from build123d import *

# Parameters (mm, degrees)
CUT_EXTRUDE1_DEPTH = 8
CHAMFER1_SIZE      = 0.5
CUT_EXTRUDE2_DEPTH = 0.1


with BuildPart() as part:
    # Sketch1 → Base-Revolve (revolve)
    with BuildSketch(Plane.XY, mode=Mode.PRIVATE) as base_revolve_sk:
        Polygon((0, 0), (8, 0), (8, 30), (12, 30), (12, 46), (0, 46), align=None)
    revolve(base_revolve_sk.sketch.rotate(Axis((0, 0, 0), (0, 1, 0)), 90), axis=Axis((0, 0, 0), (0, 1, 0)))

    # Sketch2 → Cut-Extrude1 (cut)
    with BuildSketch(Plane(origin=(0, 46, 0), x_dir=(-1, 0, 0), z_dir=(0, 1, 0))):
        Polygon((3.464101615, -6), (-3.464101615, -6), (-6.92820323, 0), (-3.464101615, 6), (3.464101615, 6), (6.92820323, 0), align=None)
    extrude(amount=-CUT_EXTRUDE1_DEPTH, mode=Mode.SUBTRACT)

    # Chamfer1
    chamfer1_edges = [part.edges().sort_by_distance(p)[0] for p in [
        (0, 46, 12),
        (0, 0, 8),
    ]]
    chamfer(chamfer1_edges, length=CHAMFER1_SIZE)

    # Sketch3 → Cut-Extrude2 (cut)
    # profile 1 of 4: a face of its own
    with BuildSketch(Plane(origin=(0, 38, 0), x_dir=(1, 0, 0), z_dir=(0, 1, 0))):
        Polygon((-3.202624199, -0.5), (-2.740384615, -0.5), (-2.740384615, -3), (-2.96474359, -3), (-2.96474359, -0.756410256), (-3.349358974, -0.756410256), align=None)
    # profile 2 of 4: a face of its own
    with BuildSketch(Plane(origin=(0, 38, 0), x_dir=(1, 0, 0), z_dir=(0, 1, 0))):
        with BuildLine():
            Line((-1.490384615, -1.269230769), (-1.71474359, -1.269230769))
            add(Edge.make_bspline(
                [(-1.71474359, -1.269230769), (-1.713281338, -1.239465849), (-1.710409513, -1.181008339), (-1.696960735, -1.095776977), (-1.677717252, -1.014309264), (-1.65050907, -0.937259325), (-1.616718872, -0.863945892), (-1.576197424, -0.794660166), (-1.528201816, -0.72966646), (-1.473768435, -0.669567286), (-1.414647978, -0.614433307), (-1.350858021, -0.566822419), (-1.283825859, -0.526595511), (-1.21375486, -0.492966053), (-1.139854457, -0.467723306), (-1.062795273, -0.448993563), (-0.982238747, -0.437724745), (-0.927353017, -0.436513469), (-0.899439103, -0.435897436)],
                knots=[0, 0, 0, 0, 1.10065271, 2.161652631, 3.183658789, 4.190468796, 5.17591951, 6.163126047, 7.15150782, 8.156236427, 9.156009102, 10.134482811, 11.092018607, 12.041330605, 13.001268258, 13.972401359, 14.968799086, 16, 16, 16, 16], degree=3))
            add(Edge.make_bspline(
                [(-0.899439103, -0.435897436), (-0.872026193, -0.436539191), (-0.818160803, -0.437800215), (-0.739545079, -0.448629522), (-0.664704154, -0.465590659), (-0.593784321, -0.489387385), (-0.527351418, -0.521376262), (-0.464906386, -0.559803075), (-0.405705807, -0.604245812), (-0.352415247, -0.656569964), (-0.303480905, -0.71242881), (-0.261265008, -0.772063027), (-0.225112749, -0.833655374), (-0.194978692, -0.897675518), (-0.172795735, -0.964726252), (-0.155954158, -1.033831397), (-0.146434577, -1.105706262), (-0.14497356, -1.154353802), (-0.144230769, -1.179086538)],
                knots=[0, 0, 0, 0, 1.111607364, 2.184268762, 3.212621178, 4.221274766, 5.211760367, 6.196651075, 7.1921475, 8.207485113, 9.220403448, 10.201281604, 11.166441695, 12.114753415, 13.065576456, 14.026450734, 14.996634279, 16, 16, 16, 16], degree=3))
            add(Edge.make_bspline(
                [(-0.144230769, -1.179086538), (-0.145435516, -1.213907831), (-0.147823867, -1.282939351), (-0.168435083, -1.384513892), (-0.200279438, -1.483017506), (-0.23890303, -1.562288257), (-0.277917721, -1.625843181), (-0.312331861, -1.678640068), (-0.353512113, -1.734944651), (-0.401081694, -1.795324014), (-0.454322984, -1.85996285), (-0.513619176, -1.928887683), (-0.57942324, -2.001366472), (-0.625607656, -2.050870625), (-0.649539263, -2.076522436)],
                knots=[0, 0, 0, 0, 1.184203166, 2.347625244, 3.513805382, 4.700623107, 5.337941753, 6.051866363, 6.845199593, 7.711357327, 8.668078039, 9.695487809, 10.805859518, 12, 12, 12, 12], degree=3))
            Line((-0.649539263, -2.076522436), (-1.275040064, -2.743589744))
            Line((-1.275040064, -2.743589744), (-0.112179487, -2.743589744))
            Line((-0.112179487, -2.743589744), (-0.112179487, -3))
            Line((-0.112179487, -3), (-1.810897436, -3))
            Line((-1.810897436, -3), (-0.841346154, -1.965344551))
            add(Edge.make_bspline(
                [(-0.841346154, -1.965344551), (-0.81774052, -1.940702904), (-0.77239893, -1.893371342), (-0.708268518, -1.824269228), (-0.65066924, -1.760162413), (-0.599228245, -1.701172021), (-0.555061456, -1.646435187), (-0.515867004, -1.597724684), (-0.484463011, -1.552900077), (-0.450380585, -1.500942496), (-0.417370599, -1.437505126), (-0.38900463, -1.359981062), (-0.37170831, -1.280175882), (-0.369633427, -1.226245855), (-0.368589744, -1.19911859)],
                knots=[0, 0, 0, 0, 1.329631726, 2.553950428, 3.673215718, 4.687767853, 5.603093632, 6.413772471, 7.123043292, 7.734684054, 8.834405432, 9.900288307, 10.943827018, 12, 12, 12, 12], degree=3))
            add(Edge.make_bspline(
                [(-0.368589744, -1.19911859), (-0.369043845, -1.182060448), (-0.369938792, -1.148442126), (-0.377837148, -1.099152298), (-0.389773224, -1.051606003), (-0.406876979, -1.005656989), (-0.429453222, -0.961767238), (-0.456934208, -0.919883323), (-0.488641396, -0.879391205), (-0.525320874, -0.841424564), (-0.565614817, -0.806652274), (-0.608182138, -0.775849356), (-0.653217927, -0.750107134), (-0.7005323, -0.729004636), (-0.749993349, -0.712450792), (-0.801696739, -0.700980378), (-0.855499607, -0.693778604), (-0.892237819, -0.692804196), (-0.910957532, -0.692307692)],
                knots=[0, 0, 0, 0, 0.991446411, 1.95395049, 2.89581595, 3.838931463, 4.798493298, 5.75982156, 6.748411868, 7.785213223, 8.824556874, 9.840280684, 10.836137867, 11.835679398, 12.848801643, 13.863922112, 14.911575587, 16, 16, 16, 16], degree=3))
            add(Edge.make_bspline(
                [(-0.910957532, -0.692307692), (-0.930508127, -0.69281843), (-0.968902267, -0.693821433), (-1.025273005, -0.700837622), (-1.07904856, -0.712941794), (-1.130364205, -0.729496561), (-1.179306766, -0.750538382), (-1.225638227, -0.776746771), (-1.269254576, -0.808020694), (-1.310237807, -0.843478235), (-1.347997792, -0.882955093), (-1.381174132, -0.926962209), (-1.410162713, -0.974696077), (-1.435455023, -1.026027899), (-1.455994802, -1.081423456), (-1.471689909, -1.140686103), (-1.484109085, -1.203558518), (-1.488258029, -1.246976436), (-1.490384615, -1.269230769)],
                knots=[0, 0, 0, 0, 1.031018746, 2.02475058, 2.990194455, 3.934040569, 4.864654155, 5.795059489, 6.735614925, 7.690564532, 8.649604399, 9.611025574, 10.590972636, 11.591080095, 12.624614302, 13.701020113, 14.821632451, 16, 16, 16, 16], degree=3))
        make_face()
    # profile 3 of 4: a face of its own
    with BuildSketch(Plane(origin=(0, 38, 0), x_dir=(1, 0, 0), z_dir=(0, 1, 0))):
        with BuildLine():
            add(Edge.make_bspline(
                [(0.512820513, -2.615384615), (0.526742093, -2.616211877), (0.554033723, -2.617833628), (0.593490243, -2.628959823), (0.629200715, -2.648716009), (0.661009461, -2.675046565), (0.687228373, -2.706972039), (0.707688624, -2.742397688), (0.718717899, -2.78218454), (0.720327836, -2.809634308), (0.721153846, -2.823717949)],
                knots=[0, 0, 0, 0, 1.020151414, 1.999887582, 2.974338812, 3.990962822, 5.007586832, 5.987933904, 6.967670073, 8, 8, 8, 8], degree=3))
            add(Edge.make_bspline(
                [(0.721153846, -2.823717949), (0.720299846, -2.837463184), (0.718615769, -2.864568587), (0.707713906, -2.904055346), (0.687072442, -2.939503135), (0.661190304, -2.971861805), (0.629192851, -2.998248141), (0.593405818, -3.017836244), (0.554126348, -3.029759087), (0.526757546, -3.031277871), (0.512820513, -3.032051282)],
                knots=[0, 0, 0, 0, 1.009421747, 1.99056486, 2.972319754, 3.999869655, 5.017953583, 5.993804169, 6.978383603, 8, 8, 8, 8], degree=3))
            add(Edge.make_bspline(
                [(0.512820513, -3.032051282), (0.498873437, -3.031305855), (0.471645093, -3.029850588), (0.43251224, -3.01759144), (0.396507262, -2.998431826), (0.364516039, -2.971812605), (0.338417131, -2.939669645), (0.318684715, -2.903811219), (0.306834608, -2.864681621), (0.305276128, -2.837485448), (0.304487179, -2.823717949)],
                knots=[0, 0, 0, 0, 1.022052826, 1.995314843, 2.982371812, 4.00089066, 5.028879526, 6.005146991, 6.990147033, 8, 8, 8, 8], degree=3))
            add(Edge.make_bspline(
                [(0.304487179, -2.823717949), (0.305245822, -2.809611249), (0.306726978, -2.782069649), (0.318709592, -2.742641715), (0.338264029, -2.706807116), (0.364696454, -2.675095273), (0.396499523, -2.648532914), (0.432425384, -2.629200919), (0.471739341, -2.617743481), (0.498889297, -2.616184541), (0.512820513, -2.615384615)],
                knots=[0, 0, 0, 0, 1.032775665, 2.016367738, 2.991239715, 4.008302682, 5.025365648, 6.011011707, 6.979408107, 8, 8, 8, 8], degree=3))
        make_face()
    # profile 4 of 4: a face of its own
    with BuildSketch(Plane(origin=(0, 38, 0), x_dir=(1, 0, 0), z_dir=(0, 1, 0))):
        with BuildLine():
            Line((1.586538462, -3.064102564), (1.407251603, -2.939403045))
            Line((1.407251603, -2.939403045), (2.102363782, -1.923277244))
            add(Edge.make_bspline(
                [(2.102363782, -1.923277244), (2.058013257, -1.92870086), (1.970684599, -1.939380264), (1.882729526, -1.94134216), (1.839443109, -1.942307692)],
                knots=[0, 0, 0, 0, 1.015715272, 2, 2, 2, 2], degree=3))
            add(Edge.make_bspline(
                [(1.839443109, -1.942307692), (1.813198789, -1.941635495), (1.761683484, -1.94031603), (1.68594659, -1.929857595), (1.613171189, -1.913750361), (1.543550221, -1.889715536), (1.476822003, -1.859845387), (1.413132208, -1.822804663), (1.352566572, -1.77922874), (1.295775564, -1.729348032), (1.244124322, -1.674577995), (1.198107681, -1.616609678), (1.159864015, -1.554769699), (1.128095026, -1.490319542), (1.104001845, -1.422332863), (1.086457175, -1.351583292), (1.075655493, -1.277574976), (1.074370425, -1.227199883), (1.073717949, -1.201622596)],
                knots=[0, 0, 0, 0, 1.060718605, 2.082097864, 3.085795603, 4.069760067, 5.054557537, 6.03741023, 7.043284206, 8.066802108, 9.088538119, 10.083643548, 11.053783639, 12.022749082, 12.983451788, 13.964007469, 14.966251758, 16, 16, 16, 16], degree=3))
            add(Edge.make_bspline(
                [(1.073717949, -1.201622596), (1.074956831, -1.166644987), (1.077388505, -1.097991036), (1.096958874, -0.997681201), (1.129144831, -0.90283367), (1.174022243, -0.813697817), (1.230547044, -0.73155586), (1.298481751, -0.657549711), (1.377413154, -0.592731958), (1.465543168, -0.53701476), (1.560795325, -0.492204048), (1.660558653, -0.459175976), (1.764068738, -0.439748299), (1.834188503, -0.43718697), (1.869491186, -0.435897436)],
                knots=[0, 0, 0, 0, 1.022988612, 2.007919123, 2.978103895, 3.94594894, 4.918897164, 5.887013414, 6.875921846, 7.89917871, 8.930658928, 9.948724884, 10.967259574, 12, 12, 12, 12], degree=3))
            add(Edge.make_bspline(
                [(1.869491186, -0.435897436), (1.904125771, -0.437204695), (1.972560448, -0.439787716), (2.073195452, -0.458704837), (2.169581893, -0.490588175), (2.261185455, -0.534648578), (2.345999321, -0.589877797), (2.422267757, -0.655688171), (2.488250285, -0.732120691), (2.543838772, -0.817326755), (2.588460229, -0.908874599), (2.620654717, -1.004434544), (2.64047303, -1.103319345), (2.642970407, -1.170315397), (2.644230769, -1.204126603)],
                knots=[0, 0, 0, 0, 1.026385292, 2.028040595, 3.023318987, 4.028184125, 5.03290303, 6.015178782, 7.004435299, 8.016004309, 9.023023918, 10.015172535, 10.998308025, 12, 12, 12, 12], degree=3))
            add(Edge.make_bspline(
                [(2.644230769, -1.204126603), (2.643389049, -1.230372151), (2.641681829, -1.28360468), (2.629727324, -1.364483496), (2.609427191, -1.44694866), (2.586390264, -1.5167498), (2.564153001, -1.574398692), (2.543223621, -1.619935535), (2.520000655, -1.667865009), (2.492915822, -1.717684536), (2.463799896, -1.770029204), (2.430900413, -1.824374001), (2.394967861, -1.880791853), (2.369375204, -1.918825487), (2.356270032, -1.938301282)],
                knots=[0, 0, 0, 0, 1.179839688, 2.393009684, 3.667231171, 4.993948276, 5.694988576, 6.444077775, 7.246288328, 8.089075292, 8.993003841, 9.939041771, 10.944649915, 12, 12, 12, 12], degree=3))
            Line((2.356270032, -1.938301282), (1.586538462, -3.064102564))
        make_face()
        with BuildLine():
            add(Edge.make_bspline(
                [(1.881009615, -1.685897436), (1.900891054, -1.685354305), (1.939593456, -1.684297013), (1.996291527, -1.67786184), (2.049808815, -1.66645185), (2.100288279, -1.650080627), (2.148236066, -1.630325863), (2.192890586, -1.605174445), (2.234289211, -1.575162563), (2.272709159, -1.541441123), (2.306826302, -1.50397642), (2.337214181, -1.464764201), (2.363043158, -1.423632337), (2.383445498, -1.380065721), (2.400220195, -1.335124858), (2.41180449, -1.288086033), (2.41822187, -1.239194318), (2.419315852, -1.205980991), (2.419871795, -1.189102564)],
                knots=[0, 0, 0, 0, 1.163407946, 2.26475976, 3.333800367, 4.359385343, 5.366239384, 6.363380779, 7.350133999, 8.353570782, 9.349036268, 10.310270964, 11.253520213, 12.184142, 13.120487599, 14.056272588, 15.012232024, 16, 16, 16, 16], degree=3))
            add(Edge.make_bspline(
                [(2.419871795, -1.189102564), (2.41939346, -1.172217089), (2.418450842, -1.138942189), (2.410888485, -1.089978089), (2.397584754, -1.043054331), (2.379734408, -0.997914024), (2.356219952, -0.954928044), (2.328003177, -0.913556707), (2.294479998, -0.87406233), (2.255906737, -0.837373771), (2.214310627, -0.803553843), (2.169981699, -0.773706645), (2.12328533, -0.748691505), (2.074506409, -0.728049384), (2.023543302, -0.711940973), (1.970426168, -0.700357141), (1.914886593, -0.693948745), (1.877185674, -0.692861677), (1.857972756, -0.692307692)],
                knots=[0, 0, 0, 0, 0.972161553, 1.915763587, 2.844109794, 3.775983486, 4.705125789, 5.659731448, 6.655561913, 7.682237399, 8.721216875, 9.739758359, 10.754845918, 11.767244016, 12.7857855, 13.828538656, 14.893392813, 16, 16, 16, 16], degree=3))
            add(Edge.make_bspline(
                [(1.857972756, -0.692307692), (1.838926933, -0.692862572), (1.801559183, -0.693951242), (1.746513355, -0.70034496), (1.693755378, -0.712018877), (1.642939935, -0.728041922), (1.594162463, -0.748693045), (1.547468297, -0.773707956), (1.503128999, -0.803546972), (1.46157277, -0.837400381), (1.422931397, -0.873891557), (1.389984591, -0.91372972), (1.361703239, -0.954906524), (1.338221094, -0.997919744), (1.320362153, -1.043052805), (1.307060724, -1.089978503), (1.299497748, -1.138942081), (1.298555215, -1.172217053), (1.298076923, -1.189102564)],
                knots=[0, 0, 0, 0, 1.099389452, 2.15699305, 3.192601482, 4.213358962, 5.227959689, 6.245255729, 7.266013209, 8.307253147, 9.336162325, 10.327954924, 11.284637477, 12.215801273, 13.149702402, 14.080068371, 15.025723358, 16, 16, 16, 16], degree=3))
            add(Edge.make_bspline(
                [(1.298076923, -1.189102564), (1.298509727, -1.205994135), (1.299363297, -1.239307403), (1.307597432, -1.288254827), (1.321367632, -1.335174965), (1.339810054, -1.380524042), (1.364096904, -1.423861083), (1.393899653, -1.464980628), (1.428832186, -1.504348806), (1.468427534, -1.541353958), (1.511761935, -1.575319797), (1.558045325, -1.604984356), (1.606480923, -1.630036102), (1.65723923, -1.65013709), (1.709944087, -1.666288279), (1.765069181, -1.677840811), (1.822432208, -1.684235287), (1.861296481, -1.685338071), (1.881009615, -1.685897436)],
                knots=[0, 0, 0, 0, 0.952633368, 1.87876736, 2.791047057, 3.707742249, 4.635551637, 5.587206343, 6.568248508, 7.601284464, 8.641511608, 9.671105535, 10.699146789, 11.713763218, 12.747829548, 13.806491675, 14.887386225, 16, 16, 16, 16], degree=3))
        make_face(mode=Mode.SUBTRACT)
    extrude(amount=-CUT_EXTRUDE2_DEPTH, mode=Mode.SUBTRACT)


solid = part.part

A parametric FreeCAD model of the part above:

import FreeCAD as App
import Part
import Sketcher
from FreeCAD import Vector
Q = App.Units.Quantity


def edges_at(feature, points):
    """Names of the edges that pass closest to the given points."""
    edges = feature.Shape.Edges
    near = lambda p: min(range(len(edges)), key=lambda i: edges[i].distToShape(Part.Vertex(*p))[0])
    return sorted({f"Edge{near(p) + 1}" for p in points})


def add_polygon(sketch, points):
    """Adds a closed chain of lines whose ends are joined by coincident constraints."""
    first, n = sketch.GeometryCount, len(points)
    for a, b in zip(points, points[1:] + points[:1]):
        sketch.addGeometry(Part.LineSegment(App.Vector(*a, 0), App.Vector(*b, 0)), False)
    for i in range(n):
        sketch.addConstraint(Sketcher.Constraint("Coincident", first + i, 2, first + (i + 1) % n, 1))

doc = App.newDocument("Part")
params = doc.addObject("Spreadsheet::Sheet", "Params")
for row, (alias, value) in enumerate([
    ("sketch1_width", "8 mm"),
    ("sketch1_width2", "4 mm"),
    ("sketch1_height", "30 mm"),
    ("sketch1_height2", "16 mm"),
    ("revolution_angle", "360 deg"),
    ("pocket1_length", "8 mm"),
    ("chamfer_size", "0.5 mm"),
    ("sketch3_height", "2.5 mm"),
    ("pocket2_length", "0.1 mm"),
], start=1):
    params.set(f"A{row}", alias)
    params.set(f"B{row}", "=" + value)
    params.setAlias(f"B{row}", alias)

body = doc.addObject("PartDesign::Body", "Body")

# Sketch on XY plane
sketch1 = body.newObject("Sketcher::SketchObject", "Sketch")
sketch1.AttachmentSupport = (doc.getObject("XY_Plane"), [""])
sketch1.MapMode = "FlatFace"
add_polygon(sketch1, [(0, 0), (8, 0), (8, 30), (12, 30), (12, 46), (0, 46)])  # lines 0-5
sketch1.addConstraint([
    Sketcher.Constraint("Horizontal", 0),
    Sketcher.Constraint("Vertical", 1),
    Sketcher.Constraint("Horizontal", 2),
    Sketcher.Constraint("Vertical", 3),
    Sketcher.Constraint("Horizontal", 4),
    Sketcher.Constraint("Vertical", 5),
    Sketcher.Constraint("Coincident", 5, 2, -1, 1),
    Sketcher.Constraint("DistanceX", 0, 1, 0, 2, Q("8 mm")),
    Sketcher.Constraint("DistanceX", 2, 1, 2, 2, Q("4 mm")),
    Sketcher.Constraint("DistanceY", 1, 1, 1, 2, Q("30 mm")),
    Sketcher.Constraint("DistanceY", 3, 1, 3, 2, Q("16 mm")),
])
sketch1.setExpression("Constraints[13]", "Params.sketch1_width")
sketch1.setExpression("Constraints[14]", "Params.sketch1_width2")
sketch1.setExpression("Constraints[15]", "Params.sketch1_height")
sketch1.setExpression("Constraints[16]", "Params.sketch1_height2")
revolution = body.newObject("PartDesign::Revolution", "Revolution")
revolution.Profile = sketch1
revolution.ReferenceAxis = (sketch1, ["V_Axis"])
revolution.setExpression("Angle", "Params.revolution_angle")

# Sketch on XZ plane
sketch2 = body.newObject("Sketcher::SketchObject", "Sketch001")
sketch2.AttachmentSupport = (doc.getObject("XZ_Plane"), [""])
sketch2.MapMode = "FlatFace"
sketch2.AttachmentOffset = App.Placement(Vector(0, 0, -46), App.Rotation())
add_polygon(sketch2, [(3.464102, -6), (-3.464102, -6), (-6.928203, 0), (-3.464102, 6), (3.464102, 6), (6.928203, 0)])  # lines 0-5
sketch2.addConstraint([
    Sketcher.Constraint("Horizontal", 0),
    Sketcher.Constraint("Horizontal", 3),
    Sketcher.Constraint("Symmetric", 0, 2, 3, 2, -1, 1),
    Sketcher.Constraint("Symmetric", 1, 2, 4, 2, -1, 1),
    Sketcher.Constraint("PointOnObject", 1, 2, -1),
    Sketcher.Constraint("Parallel", 2, 5),
    Sketcher.Constraint("Vertical", 0, 2, 2, 2),
    Sketcher.Constraint("Angle", 1, Q("120 deg")),
    Sketcher.Constraint("DistanceY", 0, 2, -1, 1, Q("6 mm")),
    Sketcher.Constraint("DistanceX", 0, 2, -1, 1, Q("3.464102 mm")),
])
pocket1 = body.newObject("PartDesign::Pocket", "Pocket")
pocket1.Profile = sketch2
pocket1.setExpression("Length", "Params.pocket1_length")
pocket1.Reversed = True
doc.recompute()

chamfer = body.newObject("PartDesign::Chamfer", "Chamfer")
chamfer.Base = (pocket1, edges_at(pocket1, [(0, 46, 12), (0, 0, 8)]))
chamfer.setExpression("Size", "Params.chamfer_size")

# Sketch on XZ plane
sketch3 = body.newObject("Sketcher::SketchObject", "Sketch002")
sketch3.AttachmentSupport = (doc.getObject("XZ_Plane"), [""])
sketch3.MapMode = "FlatFace"
sketch3.AttachmentOffset = App.Placement(Vector(0, 0, -38), App.Rotation())
add_polygon(sketch3, [(-2.740385, 0.5), (-3.202624, 0.5), (-3.349359, 0.75641), (-2.964744, 0.75641), (-2.964744, 3), (-2.740385, 3)])  # lines 0-5
sketch3.addGeometry(Part.LineSegment(Vector(-1.714744, 1.269231, 0), Vector(-1.490385, 1.269231, 0)), False)  # 6
sketch3.addGeometry(Part.BSplineCurve([Vector(-0.910958, 0.692308, 0), Vector(-0.930508, 0.692818, 0), Vector(-0.968902, 0.693821, 0), Vector(-1.025273, 0.700838, 0), Vector(-1.079049, 0.712942, 0), Vector(-1.130364, 0.729497, 0), Vector(-1.179307, 0.750538, 0), Vector(-1.225638, 0.776747, 0), Vector(-1.269255, 0.808021, 0), Vector(-1.310238, 0.843478, 0), Vector(-1.347998, 0.882955, 0), Vector(-1.381174, 0.926962, 0), Vector(-1.410163, 0.974696, 0), Vector(-1.435455, 1.026028, 0), Vector(-1.455995, 1.081423, 0), Vector(-1.47169, 1.140686, 0), Vector(-1.484109, 1.203559, 0), Vector(-1.488258, 1.246976, 0), Vector(-1.490385, 1.269231, 0)], [4, 1, 1, 1, 1, 1, 1, 1, 1, 1, 1, 1, 1, 1, 1, 1, 4], [0, 1.031018746, 2.02475058, 2.990194455, 3.934040569, 4.864654155, 5.795059489, 6.735614925, 7.690564532, 8.649604399, 9.611025574, 10.590972636, 11.591080095, 12.624614302, 13.701020113, 14.821632451, 16], False, 3, [1, 1, 1, 1, 1, 1, 1, 1, 1, 1, 1, 1, 1, 1, 1, 1, 1, 1, 1], False), False)  # 7
sketch3.addGeometry(Part.BSplineCurve([Vector(-0.36859, 1.199119, 0), Vector(-0.369044, 1.18206, 0), Vector(-0.369939, 1.148442, 0), Vector(-0.377837, 1.099152, 0), Vector(-0.389773, 1.051606, 0), Vector(-0.406877, 1.005657, 0), Vector(-0.429453, 0.961767, 0), Vector(-0.456934, 0.919883, 0), Vector(-0.488641, 0.879391, 0), Vector(-0.525321, 0.841425, 0), Vector(-0.565615, 0.806652, 0), Vector(-0.608182, 0.775849, 0), Vector(-0.653218, 0.750107, 0), Vector(-0.700532, 0.729005, 0), Vector(-0.749993, 0.712451, 0), Vector(-0.801697, 0.70098, 0), Vector(-0.8555, 0.693779, 0), Vector(-0.892238, 0.692804, 0), Vector(-0.910958, 0.692308, 0)], [4, 1, 1, 1, 1, 1, 1, 1, 1, 1, 1, 1, 1, 1, 1, 1, 4], [0, 0.991446411, 1.95395049, 2.89581595, 3.838931463, 4.798493298, 5.75982156, 6.748411868, 7.785213223, 8.824556874, 9.840280684, 10.836137867, 11.835679398, 12.848801643, 13.863922112, 14.911575587, 16], False, 3, [1, 1, 1, 1, 1, 1, 1, 1, 1, 1, 1, 1, 1, 1, 1, 1, 1, 1, 1], False), False)  # 8
sketch3.addGeometry(Part.BSplineCurve([Vector(-0.841346, 1.965345, 0), Vector(-0.817741, 1.940703, 0), Vector(-0.772399, 1.893371, 0), Vector(-0.708269, 1.824269, 0), Vector(-0.650669, 1.760162, 0), Vector(-0.599228, 1.701172, 0), Vector(-0.555061, 1.646435, 0), Vector(-0.515867, 1.597725, 0), Vector(-0.484463, 1.5529, 0), Vector(-0.450381, 1.500942, 0), Vector(-0.417371, 1.437505, 0), Vector(-0.389005, 1.359981, 0), Vector(-0.371708, 1.280176, 0), Vector(-0.369633, 1.226246, 0), Vector(-0.36859, 1.199119, 0)], [4, 1, 1, 1, 1, 1, 1, 1, 1, 1, 1, 1, 4], [0, 1.329631726, 2.553950428, 3.673215718, 4.687767853, 5.603093632, 6.413772471, 7.123043292, 7.734684054, 8.834405432, 9.900288307, 10.943827018, 12], False, 3, [1, 1, 1, 1, 1, 1, 1, 1, 1, 1, 1, 1, 1, 1, 1], False), False)  # 9
sketch3.addGeometry(Part.LineSegment(Vector(-0.841346, 1.965345, 0), Vector(-1.810897, 3, 0)), False)  # 10
sketch3.addGeometry(Part.LineSegment(Vector(-1.810897, 3, 0), Vector(-0.112179, 3, 0)), False)  # 11
sketch3.addGeometry(Part.LineSegment(Vector(-0.112179, 3, 0), Vector(-0.112179, 2.74359, 0)), False)  # 12
sketch3.addGeometry(Part.LineSegment(Vector(-0.112179, 2.74359, 0), Vector(-1.27504, 2.74359, 0)), False)  # 13
sketch3.addGeometry(Part.LineSegment(Vector(-1.27504, 2.74359, 0), Vector(-0.649539, 2.076522, 0)), False)  # 14
sketch3.addGeometry(Part.BSplineCurve([Vector(-0.144231, 1.179087, 0), Vector(-0.145436, 1.213908, 0), Vector(-0.147824, 1.282939, 0), Vector(-0.168435, 1.384514, 0), Vector(-0.200279, 1.483018, 0), Vector(-0.238903, 1.562288, 0), Vector(-0.277918, 1.625843, 0), Vector(-0.312332, 1.67864, 0), Vector(-0.353512, 1.734945, 0), Vector(-0.401082, 1.795324, 0), Vector(-0.454323, 1.859963, 0), Vector(-0.513619, 1.928888, 0), Vector(-0.579423, 2.001366, 0), Vector(-0.625608, 2.050871, 0), Vector(-0.649539, 2.076522, 0)], [4, 1, 1, 1, 1, 1, 1, 1, 1, 1, 1, 1, 4], [0, 1.184203166, 2.347625244, 3.513805382, 4.700623107, 5.337941753, 6.051866363, 6.845199593, 7.711357327, 8.668078039, 9.695487809, 10.805859518, 12], False, 3, [1, 1, 1, 1, 1, 1, 1, 1, 1, 1, 1, 1, 1, 1, 1], False), False)  # 15
sketch3.addGeometry(Part.BSplineCurve([Vector(-0.899439, 0.435897, 0), Vector(-0.872026, 0.436539, 0), Vector(-0.818161, 0.4378, 0), Vector(-0.739545, 0.44863, 0), Vector(-0.664704, 0.465591, 0), Vector(-0.593784, 0.489387, 0), Vector(-0.527351, 0.521376, 0), Vector(-0.464906, 0.559803, 0), Vector(-0.405706, 0.604246, 0), Vector(-0.352415, 0.65657, 0), Vector(-0.303481, 0.712429, 0), Vector(-0.261265, 0.772063, 0), Vector(-0.225113, 0.833655, 0), Vector(-0.194979, 0.897676, 0), Vector(-0.172796, 0.964726, 0), Vector(-0.155954, 1.033831, 0), Vector(-0.146435, 1.105706, 0), Vector(-0.144974, 1.154354, 0), Vector(-0.144231, 1.179087, 0)], [4, 1, 1, 1, 1, 1, 1, 1, 1, 1, 1, 1, 1, 1, 1, 1, 4], [0, 1.111607364, 2.184268762, 3.212621178, 4.221274766, 5.211760367, 6.196651075, 7.1921475, 8.207485113, 9.220403448, 10.201281604, 11.166441695, 12.114753415, 13.065576456, 14.026450734, 14.996634279, 16], False, 3, [1, 1, 1, 1, 1, 1, 1, 1, 1, 1, 1, 1, 1, 1, 1, 1, 1, 1, 1], False), False)  # 16
sketch3.addGeometry(Part.BSplineCurve([Vector(-1.714744, 1.269231, 0), Vector(-1.713281, 1.239466, 0), Vector(-1.71041, 1.181008, 0), Vector(-1.696961, 1.095777, 0), Vector(-1.677717, 1.014309, 0), Vector(-1.650509, 0.937259, 0), Vector(-1.616719, 0.863946, 0), Vector(-1.576197, 0.79466, 0), Vector(-1.528202, 0.729666, 0), Vector(-1.473768, 0.669567, 0), Vector(-1.414648, 0.614433, 0), Vector(-1.350858, 0.566822, 0), Vector(-1.283826, 0.526596, 0), Vector(-1.213755, 0.492966, 0), Vector(-1.139854, 0.467723, 0), Vector(-1.062795, 0.448994, 0), Vector(-0.982239, 0.437725, 0), Vector(-0.927353, 0.436513, 0), Vector(-0.899439, 0.435897, 0)], [4, 1, 1, 1, 1, 1, 1, 1, 1, 1, 1, 1, 1, 1, 1, 1, 4], [0, 1.10065271, 2.161652631, 3.183658789, 4.190468796, 5.17591951, 6.163126047, 7.15150782, 8.156236427, 9.156009102, 10.134482811, 11.092018607, 12.041330605, 13.001268258, 13.972401359, 14.968799086, 16], False, 3, [1, 1, 1, 1, 1, 1, 1, 1, 1, 1, 1, 1, 1, 1, 1, 1, 1, 1, 1], False), False)  # 17
sketch3.addGeometry(Part.BSplineCurve([Vector(0.512821, 2.615385, 0), Vector(0.526742, 2.616212, 0), Vector(0.554034, 2.617834, 0), Vector(0.59349, 2.62896, 0), Vector(0.629201, 2.648716, 0), Vector(0.661009, 2.675047, 0), Vector(0.687228, 2.706972, 0), Vector(0.707689, 2.742398, 0), Vector(0.718718, 2.782185, 0), Vector(0.720328, 2.809634, 0), Vector(0.721154, 2.823718, 0)], [4, 1, 1, 1, 1, 1, 1, 1, 4], [0, 1.020151414, 1.999887582, 2.974338812, 3.990962822, 5.007586832, 5.987933904, 6.967670073, 8], False, 3, [1, 1, 1, 1, 1, 1, 1, 1, 1, 1, 1], False), False)  # 18
sketch3.addGeometry(Part.BSplineCurve([Vector(0.304487, 2.823718, 0), Vector(0.305246, 2.809611, 0), Vector(0.306727, 2.78207, 0), Vector(0.31871, 2.742642, 0), Vector(0.338264, 2.706807, 0), Vector(0.364696, 2.675095, 0), Vector(0.3965, 2.648533, 0), Vector(0.432425, 2.629201, 0), Vector(0.471739, 2.617743, 0), Vector(0.498889, 2.616185, 0), Vector(0.512821, 2.615385, 0)], [4, 1, 1, 1, 1, 1, 1, 1, 4], [0, 1.032775665, 2.016367738, 2.991239715, 4.008302682, 5.025365648, 6.011011707, 6.979408107, 8], False, 3, [1, 1, 1, 1, 1, 1, 1, 1, 1, 1, 1], False), False)  # 19
sketch3.addGeometry(Part.BSplineCurve([Vector(0.512821, 3.032051, 0), Vector(0.498873, 3.031306, 0), Vector(0.471645, 3.029851, 0), Vector(0.432512, 3.017591, 0), Vector(0.396507, 2.998432, 0), Vector(0.364516, 2.971813, 0), Vector(0.338417, 2.93967, 0), Vector(0.318685, 2.903811, 0), Vector(0.306835, 2.864682, 0), Vector(0.305276, 2.837485, 0), Vector(0.304487, 2.823718, 0)], [4, 1, 1, 1, 1, 1, 1, 1, 4], [0, 1.022052826, 1.995314843, 2.982371812, 4.00089066, 5.028879526, 6.005146991, 6.990147033, 8], False, 3, [1, 1, 1, 1, 1, 1, 1, 1, 1, 1, 1], False), False)  # 20
sketch3.addGeometry(Part.BSplineCurve([Vector(0.721154, 2.823718, 0), Vector(0.7203, 2.837463, 0), Vector(0.718616, 2.864569, 0), Vector(0.707714, 2.904055, 0), Vector(0.687072, 2.939503, 0), Vector(0.66119, 2.971862, 0), Vector(0.629193, 2.998248, 0), Vector(0.593406, 3.017836, 0), Vector(0.554126, 3.029759, 0), Vector(0.526758, 3.031278, 0), Vector(0.512821, 3.032051, 0)], [4, 1, 1, 1, 1, 1, 1, 1, 4], [0, 1.009421747, 1.99056486, 2.972319754, 3.999869655, 5.017953583, 5.993804169, 6.978383603, 8], False, 3, [1, 1, 1, 1, 1, 1, 1, 1, 1, 1, 1], False), False)  # 21
sketch3.addGeometry(Part.LineSegment(Vector(1.407252, 2.939403, 0), Vector(1.586538, 3.064103, 0)), False)  # 22
sketch3.addGeometry(Part.LineSegment(Vector(1.586538, 3.064103, 0), Vector(2.35627, 1.938301, 0)), False)  # 23
sketch3.addGeometry(Part.BSplineCurve([Vector(2.644231, 1.204127, 0), Vector(2.643389, 1.230372, 0), Vector(2.641682, 1.283605, 0), Vector(2.629727, 1.364483, 0), Vector(2.609427, 1.446949, 0), Vector(2.58639, 1.51675, 0), Vector(2.564153, 1.574399, 0), Vector(2.543224, 1.619936, 0), Vector(2.520001, 1.667865, 0), Vector(2.492916, 1.717685, 0), Vector(2.4638, 1.770029, 0), Vector(2.4309, 1.824374, 0), Vector(2.394968, 1.880792, 0), Vector(2.369375, 1.918825, 0), Vector(2.35627, 1.938301, 0)], [4, 1, 1, 1, 1, 1, 1, 1, 1, 1, 1, 1, 4], [0, 1.179839688, 2.393009684, 3.667231171, 4.993948276, 5.694988576, 6.444077775, 7.246288328, 8.089075292, 8.993003841, 9.939041771, 10.944649915, 12], False, 3, [1, 1, 1, 1, 1, 1, 1, 1, 1, 1, 1, 1, 1, 1, 1], False), False)  # 24
sketch3.addGeometry(Part.BSplineCurve([Vector(1.869491, 0.435897, 0), Vector(1.904126, 0.437205, 0), Vector(1.97256, 0.439788, 0), Vector(2.073195, 0.458705, 0), Vector(2.169582, 0.490588, 0), Vector(2.261185, 0.534649, 0), Vector(2.345999, 0.589878, 0), Vector(2.422268, 0.655688, 0), Vector(2.48825, 0.732121, 0), Vector(2.543839, 0.817327, 0), Vector(2.58846, 0.908875, 0), Vector(2.620655, 1.004435, 0), Vector(2.640473, 1.103319, 0), Vector(2.64297, 1.170315, 0), Vector(2.644231, 1.204127, 0)], [4, 1, 1, 1, 1, 1, 1, 1, 1, 1, 1, 1, 4], [0, 1.026385292, 2.028040595, 3.023318987, 4.028184125, 5.03290303, 6.015178782, 7.004435299, 8.016004309, 9.023023918, 10.015172535, 10.998308025, 12], False, 3, [1, 1, 1, 1, 1, 1, 1, 1, 1, 1, 1, 1, 1, 1, 1], False), False)  # 25
sketch3.addGeometry(Part.BSplineCurve([Vector(1.073718, 1.201623, 0), Vector(1.074957, 1.166645, 0), Vector(1.077389, 1.097991, 0), Vector(1.096959, 0.997681, 0), Vector(1.129145, 0.902834, 0), Vector(1.174022, 0.813698, 0), Vector(1.230547, 0.731556, 0), Vector(1.298482, 0.65755, 0), Vector(1.377413, 0.592732, 0), Vector(1.465543, 0.537015, 0), Vector(1.560795, 0.492204, 0), Vector(1.660559, 0.459176, 0), Vector(1.764069, 0.439748, 0), Vector(1.834189, 0.437187, 0), Vector(1.869491, 0.435897, 0)], [4, 1, 1, 1, 1, 1, 1, 1, 1, 1, 1, 1, 4], [0, 1.022988612, 2.007919123, 2.978103895, 3.94594894, 4.918897164, 5.887013414, 6.875921846, 7.89917871, 8.930658928, 9.948724884, 10.967259574, 12], False, 3, [1, 1, 1, 1, 1, 1, 1, 1, 1, 1, 1, 1, 1, 1, 1], False), False)  # 26
sketch3.addGeometry(Part.BSplineCurve([Vector(1.839443, 1.942308, 0), Vector(1.813199, 1.941635, 0), Vector(1.761683, 1.940316, 0), Vector(1.685947, 1.929858, 0), Vector(1.613171, 1.91375, 0), Vector(1.54355, 1.889716, 0), Vector(1.476822, 1.859845, 0), Vector(1.413132, 1.822805, 0), Vector(1.352567, 1.779229, 0), Vector(1.295776, 1.729348, 0), Vector(1.244124, 1.674578, 0), Vector(1.198108, 1.61661, 0), Vector(1.159864, 1.55477, 0), Vector(1.128095, 1.49032, 0), Vector(1.104002, 1.422333, 0), Vector(1.086457, 1.351583, 0), Vector(1.075655, 1.277575, 0), Vector(1.07437, 1.2272, 0), Vector(1.073718, 1.201623, 0)], [4, 1, 1, 1, 1, 1, 1, 1, 1, 1, 1, 1, 1, 1, 1, 1, 4], [0, 1.060718605, 2.082097864, 3.085795603, 4.069760067, 5.054557537, 6.03741023, 7.043284206, 8.066802108, 9.088538119, 10.083643548, 11.053783639, 12.022749082, 12.983451788, 13.964007469, 14.966251758, 16], False, 3, [1, 1, 1, 1, 1, 1, 1, 1, 1, 1, 1, 1, 1, 1, 1, 1, 1, 1, 1], False), False)  # 27
sketch3.addGeometry(Part.BSplineCurve([Vector(2.102364, 1.923277, 0), Vector(2.058013, 1.928701, 0), Vector(1.970685, 1.93938, 0), Vector(1.88273, 1.941342, 0), Vector(1.839443, 1.942308, 0)], [4, 1, 4], [0, 1.015715272, 2], False, 3, [1, 1, 1, 1, 1], False), False)  # 28
sketch3.addGeometry(Part.LineSegment(Vector(2.102364, 1.923277, 0), Vector(1.407252, 2.939403, 0)), False)  # 29
sketch3.addGeometry(Part.BSplineCurve([Vector(1.298077, 1.189103, 0), Vector(1.29851, 1.205994, 0), Vector(1.299363, 1.239307, 0), Vector(1.307597, 1.288255, 0), Vector(1.321368, 1.335175, 0), Vector(1.33981, 1.380524, 0), Vector(1.364097, 1.423861, 0), Vector(1.3939, 1.464981, 0), Vector(1.428832, 1.504349, 0), Vector(1.468428, 1.541354, 0), Vector(1.511762, 1.57532, 0), Vector(1.558045, 1.604984, 0), Vector(1.606481, 1.630036, 0), Vector(1.657239, 1.650137, 0), Vector(1.709944, 1.666288, 0), Vector(1.765069, 1.677841, 0), Vector(1.822432, 1.684235, 0), Vector(1.861296, 1.685338, 0), Vector(1.88101, 1.685897, 0)], [4, 1, 1, 1, 1, 1, 1, 1, 1, 1, 1, 1, 1, 1, 1, 1, 4], [0, 0.952633368, 1.87876736, 2.791047057, 3.707742249, 4.635551637, 5.587206343, 6.568248508, 7.601284464, 8.641511608, 9.671105535, 10.699146789, 11.713763218, 12.747829548, 13.806491675, 14.887386225, 16], False, 3, [1, 1, 1, 1, 1, 1, 1, 1, 1, 1, 1, 1, 1, 1, 1, 1, 1, 1, 1], False), False)  # 30
sketch3.addGeometry(Part.BSplineCurve([Vector(1.857973, 0.692308, 0), Vector(1.838927, 0.692863, 0), Vector(1.801559, 0.693951, 0), Vector(1.746513, 0.700345, 0), Vector(1.693755, 0.712019, 0), Vector(1.64294, 0.728042, 0), Vector(1.594162, 0.748693, 0), Vector(1.547468, 0.773708, 0), Vector(1.503129, 0.803547, 0), Vector(1.461573, 0.8374, 0), Vector(1.422931, 0.873892, 0), Vector(1.389985, 0.91373, 0), Vector(1.361703, 0.954907, 0), Vector(1.338221, 0.99792, 0), Vector(1.320362, 1.043053, 0), Vector(1.307061, 1.089979, 0), Vector(1.299498, 1.138942, 0), Vector(1.298555, 1.172217, 0), Vector(1.298077, 1.189103, 0)], [4, 1, 1, 1, 1, 1, 1, 1, 1, 1, 1, 1, 1, 1, 1, 1, 4], [0, 1.099389452, 2.15699305, 3.192601482, 4.213358962, 5.227959689, 6.245255729, 7.266013209, 8.307253147, 9.336162325, 10.327954924, 11.284637477, 12.215801273, 13.149702402, 14.080068371, 15.025723358, 16], False, 3, [1, 1, 1, 1, 1, 1, 1, 1, 1, 1, 1, 1, 1, 1, 1, 1, 1, 1, 1], False), False)  # 31
sketch3.addGeometry(Part.BSplineCurve([Vector(2.419872, 1.189103, 0), Vector(2.419393, 1.172217, 0), Vector(2.418451, 1.138942, 0), Vector(2.410888, 1.089978, 0), Vector(2.397585, 1.043054, 0), Vector(2.379734, 0.997914, 0), Vector(2.35622, 0.954928, 0), Vector(2.328003, 0.913557, 0), Vector(2.29448, 0.874062, 0), Vector(2.255907, 0.837374, 0), Vector(2.214311, 0.803554, 0), Vector(2.169982, 0.773707, 0), Vector(2.123285, 0.748692, 0), Vector(2.074506, 0.728049, 0), Vector(2.023543, 0.711941, 0), Vector(1.970426, 0.700357, 0), Vector(1.914887, 0.693949, 0), Vector(1.877186, 0.692862, 0), Vector(1.857973, 0.692308, 0)], [4, 1, 1, 1, 1, 1, 1, 1, 1, 1, 1, 1, 1, 1, 1, 1, 4], [0, 0.972161553, 1.915763587, 2.844109794, 3.775983486, 4.705125789, 5.659731448, 6.655561913, 7.682237399, 8.721216875, 9.739758359, 10.754845918, 11.767244016, 12.7857855, 13.828538656, 14.893392813, 16], False, 3, [1, 1, 1, 1, 1, 1, 1, 1, 1, 1, 1, 1, 1, 1, 1, 1, 1, 1, 1], False), False)  # 32
sketch3.addGeometry(Part.BSplineCurve([Vector(1.88101, 1.685897, 0), Vector(1.900891, 1.685354, 0), Vector(1.939593, 1.684297, 0), Vector(1.996292, 1.677862, 0), Vector(2.049809, 1.666452, 0), Vector(2.100288, 1.650081, 0), Vector(2.148236, 1.630326, 0), Vector(2.192891, 1.605174, 0), Vector(2.234289, 1.575163, 0), Vector(2.272709, 1.541441, 0), Vector(2.306826, 1.503976, 0), Vector(2.337214, 1.464764, 0), Vector(2.363043, 1.423632, 0), Vector(2.383445, 1.380066, 0), Vector(2.40022, 1.335125, 0), Vector(2.411804, 1.288086, 0), Vector(2.418222, 1.239194, 0), Vector(2.419316, 1.205981, 0), Vector(2.419872, 1.189103, 0)], [4, 1, 1, 1, 1, 1, 1, 1, 1, 1, 1, 1, 1, 1, 1, 1, 4], [0, 1.163407946, 2.26475976, 3.333800367, 4.359385343, 5.366239384, 6.363380779, 7.350133999, 8.353570782, 9.349036268, 10.310270964, 11.253520213, 12.184142, 13.120487599, 14.056272588, 15.012232024, 16], False, 3, [1, 1, 1, 1, 1, 1, 1, 1, 1, 1, 1, 1, 1, 1, 1, 1, 1, 1, 1], False), False)  # 33
sketch3.addConstraint([
    Sketcher.Constraint("Block", 7),
    Sketcher.Constraint("Block", 8),
    Sketcher.Constraint("Block", 9),
    Sketcher.Constraint("Block", 15),
    Sketcher.Constraint("Block", 16),
    Sketcher.Constraint("Block", 17),
    Sketcher.Constraint("Block", 18),
    Sketcher.Constraint("Block", 19),
    Sketcher.Constraint("Block", 20),
    Sketcher.Constraint("Block", 21),
    Sketcher.Constraint("Block", 24),
    Sketcher.Constraint("Block", 25),
    Sketcher.Constraint("Block", 26),
    Sketcher.Constraint("Block", 27),
    Sketcher.Constraint("Block", 28),
    Sketcher.Constraint("Block", 30),
    Sketcher.Constraint("Block", 31),
    Sketcher.Constraint("Block", 32),
    Sketcher.Constraint("Block", 33),
    Sketcher.Constraint("Coincident", 6, 2, 7, 2),
    Sketcher.Constraint("Coincident", 9, 1, 10, 1),
    Sketcher.Constraint("Coincident", 10, 2, 11, 1),
    Sketcher.Constraint("Coincident", 11, 2, 12, 1),
    Sketcher.Constraint("Coincident", 12, 2, 13, 1),
    Sketcher.Constraint("Coincident", 13, 2, 14, 1),
    Sketcher.Constraint("Coincident", 14, 2, 15, 2),
    Sketcher.Constraint("Coincident", 17, 1, 6, 1),
    Sketcher.Constraint("Coincident", 22, 2, 23, 1),
    Sketcher.Constraint("Coincident", 23, 2, 24, 2),
    Sketcher.Constraint("Coincident", 28, 1, 29, 1),
    Sketcher.Constraint("Coincident", 29, 2, 22, 1),
    Sketcher.Constraint("Horizontal", 0),
    Sketcher.Constraint("Horizontal", 2),
    Sketcher.Constraint("Vertical", 3),
    Sketcher.Constraint("Horizontal", 4),
    Sketcher.Constraint("Vertical", 5),
    Sketcher.Constraint("Horizontal", 11),
    Sketcher.Constraint("Vertical", 12),
    Sketcher.Constraint("Horizontal", 13),
    Sketcher.Constraint("Horizontal", 4, 2, 10, 2),
    Sketcher.Constraint("Equal", 4, 6),
    Sketcher.Constraint("DistanceY", 5, 2, 5, 1, Q("2.5 mm")),
    Sketcher.Constraint("DistanceY", -1, 1, 3, 2, Q("3 mm")),
    Sketcher.Constraint("DistanceX", 5, 2, 6, 2, Q("1.25 mm")),
    Sketcher.Constraint("DistanceX", 0, 2, 0, 1, Q("0.46224 mm")),
    Sketcher.Constraint("DistanceX", 13, 2, 13, 1, Q("1.162861 mm")),
    Sketcher.Constraint("DistanceY", 3, 1, 3, 2, Q("2.24359 mm")),
    Sketcher.Constraint("DistanceY", 12, 2, 12, 1, Q("0.25641 mm")),
    Sketcher.Constraint("DistanceX", 13, 2, 14, 2, Q("0.625501 mm")),
    Sketcher.Constraint("DistanceY", 23, 2, 22, 2, Q("1.125801 mm")),
    Sketcher.Constraint("DistanceY", 29, 2, 22, 2, Q("0.1247 mm")),
    Sketcher.Constraint("Distance", 22, Q("0.218389 mm")),
    Sketcher.Constraint("DistanceX", 2, 1, 2, 2, Q("0.384615 mm")),
    Sketcher.Constraint("DistanceX", 11, 1, 11, 2, Q("1.698718 mm")),
    Sketcher.Constraint("DistanceX", -1, 1, 22, 2, Q("1.586538 mm")),
])
sketch3.setExpression("Constraints[47]", "Params.sketch3_height")
pocket2 = body.newObject("PartDesign::Pocket", "Pocket001")
pocket2.Profile = sketch3
pocket2.setExpression("Length", "Params.pocket2_length")
pocket2.Reversed = True

doc.recompute()
